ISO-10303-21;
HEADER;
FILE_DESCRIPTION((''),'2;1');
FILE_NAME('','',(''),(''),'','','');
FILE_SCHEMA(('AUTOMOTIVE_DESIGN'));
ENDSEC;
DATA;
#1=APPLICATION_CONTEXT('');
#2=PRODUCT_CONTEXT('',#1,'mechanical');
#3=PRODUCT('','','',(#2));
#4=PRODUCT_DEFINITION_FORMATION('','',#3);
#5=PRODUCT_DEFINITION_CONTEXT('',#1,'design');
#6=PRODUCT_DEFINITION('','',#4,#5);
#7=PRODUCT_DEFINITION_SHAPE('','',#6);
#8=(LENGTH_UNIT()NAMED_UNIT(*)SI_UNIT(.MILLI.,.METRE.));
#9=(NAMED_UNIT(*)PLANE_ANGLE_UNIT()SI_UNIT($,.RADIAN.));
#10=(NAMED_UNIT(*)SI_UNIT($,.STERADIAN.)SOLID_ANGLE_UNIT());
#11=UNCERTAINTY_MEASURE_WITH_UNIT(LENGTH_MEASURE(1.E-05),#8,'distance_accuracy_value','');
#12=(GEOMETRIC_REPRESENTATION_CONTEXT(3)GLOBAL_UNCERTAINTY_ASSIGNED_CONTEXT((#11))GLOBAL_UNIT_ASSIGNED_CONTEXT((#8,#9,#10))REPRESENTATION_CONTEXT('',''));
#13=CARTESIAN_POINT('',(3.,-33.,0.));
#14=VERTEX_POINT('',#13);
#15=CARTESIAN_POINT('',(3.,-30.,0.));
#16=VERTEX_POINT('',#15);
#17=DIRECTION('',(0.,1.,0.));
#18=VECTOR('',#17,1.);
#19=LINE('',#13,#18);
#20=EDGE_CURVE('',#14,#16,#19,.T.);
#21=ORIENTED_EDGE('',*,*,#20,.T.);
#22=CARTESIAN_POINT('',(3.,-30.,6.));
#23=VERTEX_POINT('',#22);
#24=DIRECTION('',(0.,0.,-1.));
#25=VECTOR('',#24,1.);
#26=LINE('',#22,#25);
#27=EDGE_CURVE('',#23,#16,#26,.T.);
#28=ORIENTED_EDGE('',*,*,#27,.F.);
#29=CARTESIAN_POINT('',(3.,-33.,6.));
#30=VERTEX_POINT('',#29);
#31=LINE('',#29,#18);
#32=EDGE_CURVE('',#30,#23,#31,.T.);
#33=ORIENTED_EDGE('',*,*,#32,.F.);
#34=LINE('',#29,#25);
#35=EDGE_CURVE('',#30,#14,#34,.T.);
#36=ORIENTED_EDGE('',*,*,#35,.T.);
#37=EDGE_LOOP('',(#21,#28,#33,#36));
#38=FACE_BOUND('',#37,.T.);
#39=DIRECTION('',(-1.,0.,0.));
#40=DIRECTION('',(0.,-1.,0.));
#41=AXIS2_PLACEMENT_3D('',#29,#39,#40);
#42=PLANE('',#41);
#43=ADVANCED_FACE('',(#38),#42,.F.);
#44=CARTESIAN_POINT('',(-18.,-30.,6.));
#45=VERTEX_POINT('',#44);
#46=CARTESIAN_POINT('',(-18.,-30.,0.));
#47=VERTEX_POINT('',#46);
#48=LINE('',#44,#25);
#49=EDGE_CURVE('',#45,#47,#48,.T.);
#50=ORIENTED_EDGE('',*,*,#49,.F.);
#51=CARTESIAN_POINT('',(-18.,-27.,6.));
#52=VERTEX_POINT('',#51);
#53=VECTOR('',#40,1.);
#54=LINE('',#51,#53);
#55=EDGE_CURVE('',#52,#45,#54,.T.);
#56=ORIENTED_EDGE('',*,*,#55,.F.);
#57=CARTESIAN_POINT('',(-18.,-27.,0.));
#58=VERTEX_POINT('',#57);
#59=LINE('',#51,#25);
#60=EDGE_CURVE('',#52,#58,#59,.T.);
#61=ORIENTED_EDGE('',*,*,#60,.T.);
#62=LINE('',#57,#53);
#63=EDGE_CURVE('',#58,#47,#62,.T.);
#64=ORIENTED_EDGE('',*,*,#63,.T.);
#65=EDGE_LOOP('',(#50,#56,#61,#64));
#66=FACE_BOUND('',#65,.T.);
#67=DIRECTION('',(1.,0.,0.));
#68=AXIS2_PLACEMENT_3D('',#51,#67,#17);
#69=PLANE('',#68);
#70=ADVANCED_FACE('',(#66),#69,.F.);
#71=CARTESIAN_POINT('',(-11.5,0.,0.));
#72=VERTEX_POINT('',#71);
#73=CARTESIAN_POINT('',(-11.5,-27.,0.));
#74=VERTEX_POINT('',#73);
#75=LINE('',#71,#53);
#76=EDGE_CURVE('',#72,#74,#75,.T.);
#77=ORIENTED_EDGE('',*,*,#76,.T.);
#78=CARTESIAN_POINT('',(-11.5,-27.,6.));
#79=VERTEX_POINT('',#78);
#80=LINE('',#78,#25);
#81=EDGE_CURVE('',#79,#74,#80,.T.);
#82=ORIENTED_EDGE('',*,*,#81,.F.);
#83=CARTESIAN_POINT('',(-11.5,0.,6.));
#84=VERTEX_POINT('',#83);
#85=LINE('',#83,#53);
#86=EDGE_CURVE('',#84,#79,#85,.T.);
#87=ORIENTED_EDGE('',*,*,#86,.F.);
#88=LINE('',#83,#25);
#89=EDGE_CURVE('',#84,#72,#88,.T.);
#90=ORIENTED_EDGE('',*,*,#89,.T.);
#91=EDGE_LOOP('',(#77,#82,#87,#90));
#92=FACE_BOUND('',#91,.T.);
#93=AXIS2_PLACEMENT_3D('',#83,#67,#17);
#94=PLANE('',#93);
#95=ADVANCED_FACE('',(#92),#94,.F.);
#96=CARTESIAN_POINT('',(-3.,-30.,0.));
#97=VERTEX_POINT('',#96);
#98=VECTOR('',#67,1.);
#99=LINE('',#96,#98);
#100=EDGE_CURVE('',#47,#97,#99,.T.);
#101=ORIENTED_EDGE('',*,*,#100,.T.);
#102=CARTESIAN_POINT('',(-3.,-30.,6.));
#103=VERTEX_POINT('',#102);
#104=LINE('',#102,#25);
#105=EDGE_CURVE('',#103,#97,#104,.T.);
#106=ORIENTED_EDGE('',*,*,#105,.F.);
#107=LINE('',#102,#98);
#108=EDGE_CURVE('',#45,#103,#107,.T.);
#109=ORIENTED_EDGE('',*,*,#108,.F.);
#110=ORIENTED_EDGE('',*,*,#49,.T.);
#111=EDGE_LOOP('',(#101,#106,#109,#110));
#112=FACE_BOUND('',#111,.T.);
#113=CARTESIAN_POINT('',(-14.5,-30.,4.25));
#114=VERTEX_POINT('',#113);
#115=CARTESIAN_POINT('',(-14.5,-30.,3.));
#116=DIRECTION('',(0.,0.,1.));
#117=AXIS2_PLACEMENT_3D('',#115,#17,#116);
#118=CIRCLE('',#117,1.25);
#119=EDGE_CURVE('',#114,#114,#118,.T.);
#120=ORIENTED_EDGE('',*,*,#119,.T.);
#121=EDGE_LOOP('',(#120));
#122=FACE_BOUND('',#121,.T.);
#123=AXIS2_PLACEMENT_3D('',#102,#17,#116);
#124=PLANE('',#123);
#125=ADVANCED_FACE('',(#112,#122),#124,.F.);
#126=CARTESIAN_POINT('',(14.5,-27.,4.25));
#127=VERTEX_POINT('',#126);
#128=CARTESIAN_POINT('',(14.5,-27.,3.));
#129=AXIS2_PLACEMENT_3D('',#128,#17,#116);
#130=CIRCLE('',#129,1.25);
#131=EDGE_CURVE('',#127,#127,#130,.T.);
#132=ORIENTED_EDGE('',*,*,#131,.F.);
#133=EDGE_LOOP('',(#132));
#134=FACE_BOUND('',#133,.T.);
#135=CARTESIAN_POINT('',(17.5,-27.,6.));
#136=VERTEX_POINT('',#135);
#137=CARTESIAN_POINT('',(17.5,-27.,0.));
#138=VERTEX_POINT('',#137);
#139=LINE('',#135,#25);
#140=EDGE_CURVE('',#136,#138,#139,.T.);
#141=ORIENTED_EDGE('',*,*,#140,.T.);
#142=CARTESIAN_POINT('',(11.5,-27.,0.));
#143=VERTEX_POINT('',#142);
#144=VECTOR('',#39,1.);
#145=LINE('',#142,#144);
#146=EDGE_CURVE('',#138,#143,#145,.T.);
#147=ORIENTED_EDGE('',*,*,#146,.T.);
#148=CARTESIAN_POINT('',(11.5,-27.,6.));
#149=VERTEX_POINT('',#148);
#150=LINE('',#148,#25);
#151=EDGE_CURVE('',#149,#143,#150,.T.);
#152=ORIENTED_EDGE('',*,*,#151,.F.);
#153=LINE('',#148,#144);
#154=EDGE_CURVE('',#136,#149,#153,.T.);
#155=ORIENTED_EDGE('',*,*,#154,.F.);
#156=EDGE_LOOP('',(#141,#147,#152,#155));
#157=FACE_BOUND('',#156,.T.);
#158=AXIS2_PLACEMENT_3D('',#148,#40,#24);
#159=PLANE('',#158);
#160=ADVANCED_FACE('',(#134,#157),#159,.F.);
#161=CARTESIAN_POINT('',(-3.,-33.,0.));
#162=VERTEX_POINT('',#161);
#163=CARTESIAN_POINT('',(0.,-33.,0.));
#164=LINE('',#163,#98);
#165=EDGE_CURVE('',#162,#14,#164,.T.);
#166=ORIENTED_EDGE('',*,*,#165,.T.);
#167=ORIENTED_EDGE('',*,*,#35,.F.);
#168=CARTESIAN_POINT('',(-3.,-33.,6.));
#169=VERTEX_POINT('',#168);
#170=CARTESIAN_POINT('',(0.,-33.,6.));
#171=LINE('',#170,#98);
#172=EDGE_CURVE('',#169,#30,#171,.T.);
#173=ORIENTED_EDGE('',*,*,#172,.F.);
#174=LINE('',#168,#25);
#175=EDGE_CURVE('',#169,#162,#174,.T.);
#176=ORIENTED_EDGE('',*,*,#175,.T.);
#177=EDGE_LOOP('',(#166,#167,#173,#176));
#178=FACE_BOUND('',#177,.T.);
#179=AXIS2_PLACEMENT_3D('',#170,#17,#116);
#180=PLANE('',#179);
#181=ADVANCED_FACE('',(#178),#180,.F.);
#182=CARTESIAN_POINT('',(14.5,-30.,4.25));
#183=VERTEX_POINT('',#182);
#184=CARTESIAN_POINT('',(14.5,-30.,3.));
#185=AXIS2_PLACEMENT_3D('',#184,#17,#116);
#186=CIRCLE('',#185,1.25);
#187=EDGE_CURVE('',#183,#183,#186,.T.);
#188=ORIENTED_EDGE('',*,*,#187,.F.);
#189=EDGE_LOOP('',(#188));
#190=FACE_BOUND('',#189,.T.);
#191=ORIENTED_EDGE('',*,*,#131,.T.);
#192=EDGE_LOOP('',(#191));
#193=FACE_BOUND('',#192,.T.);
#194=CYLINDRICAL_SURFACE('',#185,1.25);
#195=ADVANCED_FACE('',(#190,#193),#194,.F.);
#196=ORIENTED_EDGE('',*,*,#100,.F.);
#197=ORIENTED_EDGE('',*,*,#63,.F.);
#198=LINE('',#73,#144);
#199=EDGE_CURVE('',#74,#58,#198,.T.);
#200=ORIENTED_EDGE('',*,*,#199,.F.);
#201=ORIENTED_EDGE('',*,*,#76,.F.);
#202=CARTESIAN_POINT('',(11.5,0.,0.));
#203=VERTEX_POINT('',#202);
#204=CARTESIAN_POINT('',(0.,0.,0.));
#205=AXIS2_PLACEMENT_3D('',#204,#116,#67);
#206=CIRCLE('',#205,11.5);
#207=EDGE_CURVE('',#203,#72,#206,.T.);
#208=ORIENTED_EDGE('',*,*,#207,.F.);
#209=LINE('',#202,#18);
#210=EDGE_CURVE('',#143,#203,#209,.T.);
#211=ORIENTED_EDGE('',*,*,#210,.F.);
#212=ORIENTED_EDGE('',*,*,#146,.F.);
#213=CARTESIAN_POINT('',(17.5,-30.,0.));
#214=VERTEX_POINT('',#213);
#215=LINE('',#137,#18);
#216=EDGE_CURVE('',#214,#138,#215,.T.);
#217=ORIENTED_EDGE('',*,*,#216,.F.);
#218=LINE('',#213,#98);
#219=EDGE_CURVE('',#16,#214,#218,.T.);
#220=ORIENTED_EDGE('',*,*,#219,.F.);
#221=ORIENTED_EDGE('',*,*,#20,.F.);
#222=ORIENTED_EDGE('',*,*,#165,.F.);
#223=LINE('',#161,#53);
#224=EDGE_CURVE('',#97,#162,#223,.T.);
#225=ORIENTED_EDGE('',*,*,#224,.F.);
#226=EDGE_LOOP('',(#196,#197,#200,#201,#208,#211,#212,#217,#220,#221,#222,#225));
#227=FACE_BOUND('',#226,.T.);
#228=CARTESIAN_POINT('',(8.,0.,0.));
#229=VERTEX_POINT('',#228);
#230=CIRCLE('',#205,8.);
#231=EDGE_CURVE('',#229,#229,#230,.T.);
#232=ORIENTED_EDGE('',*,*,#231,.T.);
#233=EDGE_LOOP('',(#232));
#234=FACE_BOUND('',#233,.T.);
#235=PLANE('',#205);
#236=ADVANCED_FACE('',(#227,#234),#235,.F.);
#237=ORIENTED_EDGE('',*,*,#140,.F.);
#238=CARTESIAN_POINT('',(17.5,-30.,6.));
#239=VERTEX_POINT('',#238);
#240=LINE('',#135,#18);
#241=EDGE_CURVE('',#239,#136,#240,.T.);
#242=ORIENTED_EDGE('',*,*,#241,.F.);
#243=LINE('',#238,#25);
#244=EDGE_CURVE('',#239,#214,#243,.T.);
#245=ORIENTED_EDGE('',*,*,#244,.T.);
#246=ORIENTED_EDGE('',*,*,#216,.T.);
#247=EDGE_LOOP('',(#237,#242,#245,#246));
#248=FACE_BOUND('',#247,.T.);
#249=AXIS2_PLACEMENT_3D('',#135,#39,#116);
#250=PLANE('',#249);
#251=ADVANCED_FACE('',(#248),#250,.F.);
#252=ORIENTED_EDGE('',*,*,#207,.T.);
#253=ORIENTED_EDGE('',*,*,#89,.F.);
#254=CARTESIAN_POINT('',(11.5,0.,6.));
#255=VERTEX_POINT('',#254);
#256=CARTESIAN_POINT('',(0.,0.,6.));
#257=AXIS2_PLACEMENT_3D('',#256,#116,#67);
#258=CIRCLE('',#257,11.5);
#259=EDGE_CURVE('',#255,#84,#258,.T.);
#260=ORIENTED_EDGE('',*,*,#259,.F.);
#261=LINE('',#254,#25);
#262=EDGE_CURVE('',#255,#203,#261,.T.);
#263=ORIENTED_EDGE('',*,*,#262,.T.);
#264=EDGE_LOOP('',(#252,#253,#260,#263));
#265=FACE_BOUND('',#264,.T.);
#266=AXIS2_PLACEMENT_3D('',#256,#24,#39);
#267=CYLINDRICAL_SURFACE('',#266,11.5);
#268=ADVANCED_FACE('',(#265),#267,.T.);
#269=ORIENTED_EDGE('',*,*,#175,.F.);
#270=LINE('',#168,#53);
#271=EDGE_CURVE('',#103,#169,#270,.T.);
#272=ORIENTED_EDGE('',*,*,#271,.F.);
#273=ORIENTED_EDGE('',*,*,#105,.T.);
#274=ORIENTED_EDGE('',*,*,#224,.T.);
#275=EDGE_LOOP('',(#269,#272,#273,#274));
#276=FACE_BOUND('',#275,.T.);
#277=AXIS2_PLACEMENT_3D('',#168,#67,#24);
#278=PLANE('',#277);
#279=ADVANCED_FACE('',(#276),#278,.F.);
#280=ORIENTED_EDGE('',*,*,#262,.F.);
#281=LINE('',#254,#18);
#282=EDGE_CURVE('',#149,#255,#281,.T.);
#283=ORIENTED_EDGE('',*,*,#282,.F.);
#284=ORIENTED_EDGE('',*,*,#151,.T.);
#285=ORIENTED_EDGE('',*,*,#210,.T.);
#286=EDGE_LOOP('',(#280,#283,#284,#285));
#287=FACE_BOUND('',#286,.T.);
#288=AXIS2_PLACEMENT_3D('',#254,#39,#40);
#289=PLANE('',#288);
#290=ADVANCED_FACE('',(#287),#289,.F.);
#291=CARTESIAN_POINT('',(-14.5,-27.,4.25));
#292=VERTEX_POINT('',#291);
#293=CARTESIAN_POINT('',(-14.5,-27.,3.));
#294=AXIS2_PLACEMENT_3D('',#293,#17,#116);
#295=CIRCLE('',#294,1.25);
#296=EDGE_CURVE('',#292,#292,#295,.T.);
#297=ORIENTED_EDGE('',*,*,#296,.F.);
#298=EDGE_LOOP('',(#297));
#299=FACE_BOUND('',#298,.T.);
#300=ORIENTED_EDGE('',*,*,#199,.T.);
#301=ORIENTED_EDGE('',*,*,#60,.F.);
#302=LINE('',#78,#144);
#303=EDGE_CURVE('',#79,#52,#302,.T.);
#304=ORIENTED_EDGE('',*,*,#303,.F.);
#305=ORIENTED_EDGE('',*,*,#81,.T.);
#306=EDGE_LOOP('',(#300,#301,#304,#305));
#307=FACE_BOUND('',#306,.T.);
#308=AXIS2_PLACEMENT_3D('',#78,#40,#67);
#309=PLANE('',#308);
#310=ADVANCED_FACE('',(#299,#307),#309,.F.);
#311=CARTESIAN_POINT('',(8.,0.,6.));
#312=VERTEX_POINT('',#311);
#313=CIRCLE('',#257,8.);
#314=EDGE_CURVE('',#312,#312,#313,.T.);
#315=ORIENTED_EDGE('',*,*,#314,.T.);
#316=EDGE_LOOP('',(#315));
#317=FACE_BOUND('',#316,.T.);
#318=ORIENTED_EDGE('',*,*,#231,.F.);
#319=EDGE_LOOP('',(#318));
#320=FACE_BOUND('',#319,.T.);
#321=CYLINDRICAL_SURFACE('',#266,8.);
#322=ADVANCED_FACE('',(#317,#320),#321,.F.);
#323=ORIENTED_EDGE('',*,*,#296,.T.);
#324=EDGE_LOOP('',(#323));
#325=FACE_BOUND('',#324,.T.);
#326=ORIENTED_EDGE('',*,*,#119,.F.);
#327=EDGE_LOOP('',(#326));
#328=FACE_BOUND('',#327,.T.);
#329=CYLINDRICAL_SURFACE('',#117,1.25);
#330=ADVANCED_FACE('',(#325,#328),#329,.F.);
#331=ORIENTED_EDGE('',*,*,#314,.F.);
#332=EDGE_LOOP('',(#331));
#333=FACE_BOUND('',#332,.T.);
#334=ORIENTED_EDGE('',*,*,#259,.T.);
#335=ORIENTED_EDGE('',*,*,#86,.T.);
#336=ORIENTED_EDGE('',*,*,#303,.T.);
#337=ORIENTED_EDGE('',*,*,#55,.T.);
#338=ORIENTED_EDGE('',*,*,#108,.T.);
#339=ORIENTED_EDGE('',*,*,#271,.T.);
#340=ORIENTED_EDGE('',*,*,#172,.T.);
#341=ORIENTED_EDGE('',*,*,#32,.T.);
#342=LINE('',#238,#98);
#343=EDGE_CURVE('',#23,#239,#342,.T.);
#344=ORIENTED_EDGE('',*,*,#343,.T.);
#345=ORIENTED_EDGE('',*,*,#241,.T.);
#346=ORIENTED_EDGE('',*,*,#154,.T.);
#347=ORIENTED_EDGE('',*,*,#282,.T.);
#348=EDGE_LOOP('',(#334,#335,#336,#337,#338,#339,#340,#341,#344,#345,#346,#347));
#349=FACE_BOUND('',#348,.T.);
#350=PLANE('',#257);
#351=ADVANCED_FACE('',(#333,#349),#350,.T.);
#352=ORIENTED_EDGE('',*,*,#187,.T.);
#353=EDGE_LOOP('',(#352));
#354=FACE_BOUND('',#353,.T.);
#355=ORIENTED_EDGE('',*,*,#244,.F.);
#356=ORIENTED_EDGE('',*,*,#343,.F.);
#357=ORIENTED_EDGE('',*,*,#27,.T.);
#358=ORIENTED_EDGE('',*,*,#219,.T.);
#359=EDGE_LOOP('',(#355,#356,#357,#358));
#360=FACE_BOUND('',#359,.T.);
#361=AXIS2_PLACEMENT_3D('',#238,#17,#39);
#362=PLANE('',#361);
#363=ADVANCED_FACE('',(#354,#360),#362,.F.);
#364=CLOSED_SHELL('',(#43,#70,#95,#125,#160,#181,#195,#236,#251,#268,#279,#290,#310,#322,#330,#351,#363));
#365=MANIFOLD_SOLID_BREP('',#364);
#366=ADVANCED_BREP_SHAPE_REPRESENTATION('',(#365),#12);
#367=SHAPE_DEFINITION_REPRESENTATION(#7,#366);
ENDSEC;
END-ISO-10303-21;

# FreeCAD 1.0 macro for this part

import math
import FreeCAD as App
import Part
import Sketcher
from FreeCAD import Vector
Q = App.Units.Quantity

doc = App.newDocument("Part")
body = doc.addObject("PartDesign::Body", "Body")

# Sketch on XY plane
sketch1 = doc.addObject("Sketcher::SketchObject", "Sketch")
body.addObject(sketch1)
sketch1.AttachmentSupport = (doc.XY_Plane, [""])
sketch1.MapMode = "FlatFace"
sketch1.addGeometry([
    Part.LineSegment(Vector(-18, -30, 0), Vector(-3, -30, 0)),  # 0
    Part.LineSegment(Vector(-3, -30, 0), Vector(-3, -33, 0)),  # 1
    Part.LineSegment(Vector(-3, -33, 0), Vector(3, -33, 0)),  # 2
    Part.LineSegment(Vector(3, -33, 0), Vector(3, -30, 0)),  # 3
    Part.LineSegment(Vector(3, -30, 0), Vector(17.5, -30, 0)),  # 4
    Part.LineSegment(Vector(17.5, -30, 0), Vector(17.5, -27, 0)),  # 5
    Part.LineSegment(Vector(17.5, -27, 0), Vector(11.5, -27, 0)),  # 6
    Part.LineSegment(Vector(11.5, -27, 0), Vector(11.5, 0, 0)),  # 7
    Part.ArcOfCircle(Part.Circle(Vector(0, 0, 0), Vector(0, 0, 1), 11.5), math.radians(0), math.radians(180)),  # 8
    Part.LineSegment(Vector(-11.5, 0, 0), Vector(-11.5, -27, 0)),  # 9
    Part.LineSegment(Vector(-11.5, -27, 0), Vector(-18, -27, 0)),  # 10
    Part.LineSegment(Vector(-18, -27, 0), Vector(-18, -30, 0)),  # 11
    Part.Circle(Vector(0, 0, 0), Vector(0, 0, 1), 8),  # 12
], False)
sketch1.addConstraint([
    Sketcher.Constraint("Coincident", 0, 2, 1, 1),
    Sketcher.Constraint("Coincident", 1, 2, 2, 1),
    Sketcher.Constraint("Coincident", 2, 2, 3, 1),
    Sketcher.Constraint("Coincident", 3, 2, 4, 1),
    Sketcher.Constraint("Coincident", 4, 2, 5, 1),
    Sketcher.Constraint("Coincident", 5, 2, 6, 1),
    Sketcher.Constraint("Coincident", 6, 2, 7, 1),
    Sketcher.Constraint("Tangent", 7, 2, 8, 1),
    Sketcher.Constraint("Tangent", 8, 2, 9, 1),
    Sketcher.Constraint("Coincident", 9, 2, 10, 1),
    Sketcher.Constraint("Coincident", 10, 2, 11, 1),
    Sketcher.Constraint("Coincident", 11, 2, 0, 1),
    Sketcher.Constraint("Horizontal", 0),
    Sketcher.Constraint("Vertical", 1),
    Sketcher.Constraint("Horizontal", 2),
    Sketcher.Constraint("Vertical", 3),
    Sketcher.Constraint("Horizontal", 4),
    Sketcher.Constraint("Vertical", 5),
    Sketcher.Constraint("Horizontal", 6),
    Sketcher.Constraint("Vertical", 7),
    Sketcher.Constraint("Vertical", 9),
    Sketcher.Constraint("Horizontal", 10),
    Sketcher.Constraint("Vertical", 11),
    Sketcher.Constraint("Coincident", 8, 3, -1, 1),
    Sketcher.Constraint("Coincident", 12, 3, -1, 1),
    Sketcher.Constraint("Symmetric", 0, 2, 3, 2, -2),
    Sketcher.Constraint("Horizontal", 6, 2, 9, 2),
    Sketcher.Constraint("Equal", 2, 6),
    Sketcher.Constraint("Equal", 3, 5),
    Sketcher.Constraint("Diameter", 12, Q("16 mm")),
    Sketcher.Constraint("Radius", 8, Q("11.5 mm")),
    Sketcher.Constraint("DistanceX", 0, 1, 0, 2, Q("15 mm")),
    Sketcher.Constraint("DistanceX", 2, 1, 2, 2, Q("6 mm")),
    Sketcher.Constraint("DistanceY", 1, 2, 1, 1, Q("3 mm")),
    Sketcher.Constraint("DistanceY", 7, 1, 7, 2, Q("27 mm")),
])
pad1 = doc.addObject("PartDesign::Pad", "Pad")
body.addObject(pad1)
pad1.Profile = sketch1
pad1.Length = 6

# Sketch on XZ plane
sketch2 = doc.addObject("Sketcher::SketchObject", "Sketch001")
body.addObject(sketch2)
sketch2.AttachmentSupport = (doc.XZ_Plane, [""])
sketch2.MapMode = "FlatFace"
sketch2.AttachmentOffset = App.Placement(Vector(0, 0, 27), App.Rotation())
sketch2.addGeometry([
    Part.Circle(Vector(-14.5, 3, 0), Vector(0, 0, 1), 1.2),
    Part.Circle(Vector(14.5, 3, 0), Vector(0, 0, 1), 1.2),
], False)
sketch2.addConstraint([
    Sketcher.Constraint("Equal", 0, 1),
    Sketcher.Constraint("Symmetric", 0, 3, 1, 3, -2),
    Sketcher.Constraint("Diameter", 0, Q("2.5 mm")),
    Sketcher.Constraint("DistanceY", -1, 1, 0, 3, Q("3 mm")),
    Sketcher.Constraint("DistanceX", 0, 3, 1, 3, Q("29 mm")),
])
pocket1 = doc.addObject("PartDesign::Pocket", "Pocket")
body.addObject(pocket1)
pocket1.Profile = sketch2
pocket1.Length = 3
pocket1.Reversed = True

doc.recompute()
